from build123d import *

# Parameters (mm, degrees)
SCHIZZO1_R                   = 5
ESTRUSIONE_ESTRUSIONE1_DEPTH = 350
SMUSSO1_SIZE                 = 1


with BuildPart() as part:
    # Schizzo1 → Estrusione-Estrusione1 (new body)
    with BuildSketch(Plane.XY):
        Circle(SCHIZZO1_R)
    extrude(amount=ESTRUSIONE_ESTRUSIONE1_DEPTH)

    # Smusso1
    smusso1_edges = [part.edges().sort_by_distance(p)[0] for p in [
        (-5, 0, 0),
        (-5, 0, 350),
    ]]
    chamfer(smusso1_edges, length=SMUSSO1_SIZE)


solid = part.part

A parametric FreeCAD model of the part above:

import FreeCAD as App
import Part
import Sketcher


def edges_at(feature, points):
    """Names of the edges that pass closest to the given points."""
    edges = feature.Shape.Edges
    near = lambda p: min(range(len(edges)), key=lambda i: edges[i].distToShape(Part.Vertex(*p))[0])
    return sorted({f"Edge{near(p) + 1}" for p in points})

doc = App.newDocument("Part")
body = doc.addObject("PartDesign::Body", "Body")

# Sketch on XY plane
sketch1 = body.newObject("Sketcher::SketchObject", "Sketch")
sketch1.AttachmentSupport = (doc.getObject("XY_Plane"), [""])
sketch1.MapMode = "FlatFace"
sketch1.addGeometry(Part.Circle(App.Vector(0, 0, 0), App.Vector(0, 0, 1), 5), False)
sketch1.addConstraint([
    Sketcher.Constraint("Coincident", 0, 3, -1, 1),
    Sketcher.Constraint("Diameter", 0, 10.0),
])
pad1 = body.newObject("PartDesign::Pad", "Pad")
pad1.Profile = sketch1
pad1.Length = 350
doc.recompute()

chamfer = body.newObject("PartDesign::Chamfer", "Chamfer")
chamfer.Base = (pad1, edges_at(pad1, [(-5, 0, 0), (-5, 0, 350)]))
chamfer.Size = 1

doc.recompute()
